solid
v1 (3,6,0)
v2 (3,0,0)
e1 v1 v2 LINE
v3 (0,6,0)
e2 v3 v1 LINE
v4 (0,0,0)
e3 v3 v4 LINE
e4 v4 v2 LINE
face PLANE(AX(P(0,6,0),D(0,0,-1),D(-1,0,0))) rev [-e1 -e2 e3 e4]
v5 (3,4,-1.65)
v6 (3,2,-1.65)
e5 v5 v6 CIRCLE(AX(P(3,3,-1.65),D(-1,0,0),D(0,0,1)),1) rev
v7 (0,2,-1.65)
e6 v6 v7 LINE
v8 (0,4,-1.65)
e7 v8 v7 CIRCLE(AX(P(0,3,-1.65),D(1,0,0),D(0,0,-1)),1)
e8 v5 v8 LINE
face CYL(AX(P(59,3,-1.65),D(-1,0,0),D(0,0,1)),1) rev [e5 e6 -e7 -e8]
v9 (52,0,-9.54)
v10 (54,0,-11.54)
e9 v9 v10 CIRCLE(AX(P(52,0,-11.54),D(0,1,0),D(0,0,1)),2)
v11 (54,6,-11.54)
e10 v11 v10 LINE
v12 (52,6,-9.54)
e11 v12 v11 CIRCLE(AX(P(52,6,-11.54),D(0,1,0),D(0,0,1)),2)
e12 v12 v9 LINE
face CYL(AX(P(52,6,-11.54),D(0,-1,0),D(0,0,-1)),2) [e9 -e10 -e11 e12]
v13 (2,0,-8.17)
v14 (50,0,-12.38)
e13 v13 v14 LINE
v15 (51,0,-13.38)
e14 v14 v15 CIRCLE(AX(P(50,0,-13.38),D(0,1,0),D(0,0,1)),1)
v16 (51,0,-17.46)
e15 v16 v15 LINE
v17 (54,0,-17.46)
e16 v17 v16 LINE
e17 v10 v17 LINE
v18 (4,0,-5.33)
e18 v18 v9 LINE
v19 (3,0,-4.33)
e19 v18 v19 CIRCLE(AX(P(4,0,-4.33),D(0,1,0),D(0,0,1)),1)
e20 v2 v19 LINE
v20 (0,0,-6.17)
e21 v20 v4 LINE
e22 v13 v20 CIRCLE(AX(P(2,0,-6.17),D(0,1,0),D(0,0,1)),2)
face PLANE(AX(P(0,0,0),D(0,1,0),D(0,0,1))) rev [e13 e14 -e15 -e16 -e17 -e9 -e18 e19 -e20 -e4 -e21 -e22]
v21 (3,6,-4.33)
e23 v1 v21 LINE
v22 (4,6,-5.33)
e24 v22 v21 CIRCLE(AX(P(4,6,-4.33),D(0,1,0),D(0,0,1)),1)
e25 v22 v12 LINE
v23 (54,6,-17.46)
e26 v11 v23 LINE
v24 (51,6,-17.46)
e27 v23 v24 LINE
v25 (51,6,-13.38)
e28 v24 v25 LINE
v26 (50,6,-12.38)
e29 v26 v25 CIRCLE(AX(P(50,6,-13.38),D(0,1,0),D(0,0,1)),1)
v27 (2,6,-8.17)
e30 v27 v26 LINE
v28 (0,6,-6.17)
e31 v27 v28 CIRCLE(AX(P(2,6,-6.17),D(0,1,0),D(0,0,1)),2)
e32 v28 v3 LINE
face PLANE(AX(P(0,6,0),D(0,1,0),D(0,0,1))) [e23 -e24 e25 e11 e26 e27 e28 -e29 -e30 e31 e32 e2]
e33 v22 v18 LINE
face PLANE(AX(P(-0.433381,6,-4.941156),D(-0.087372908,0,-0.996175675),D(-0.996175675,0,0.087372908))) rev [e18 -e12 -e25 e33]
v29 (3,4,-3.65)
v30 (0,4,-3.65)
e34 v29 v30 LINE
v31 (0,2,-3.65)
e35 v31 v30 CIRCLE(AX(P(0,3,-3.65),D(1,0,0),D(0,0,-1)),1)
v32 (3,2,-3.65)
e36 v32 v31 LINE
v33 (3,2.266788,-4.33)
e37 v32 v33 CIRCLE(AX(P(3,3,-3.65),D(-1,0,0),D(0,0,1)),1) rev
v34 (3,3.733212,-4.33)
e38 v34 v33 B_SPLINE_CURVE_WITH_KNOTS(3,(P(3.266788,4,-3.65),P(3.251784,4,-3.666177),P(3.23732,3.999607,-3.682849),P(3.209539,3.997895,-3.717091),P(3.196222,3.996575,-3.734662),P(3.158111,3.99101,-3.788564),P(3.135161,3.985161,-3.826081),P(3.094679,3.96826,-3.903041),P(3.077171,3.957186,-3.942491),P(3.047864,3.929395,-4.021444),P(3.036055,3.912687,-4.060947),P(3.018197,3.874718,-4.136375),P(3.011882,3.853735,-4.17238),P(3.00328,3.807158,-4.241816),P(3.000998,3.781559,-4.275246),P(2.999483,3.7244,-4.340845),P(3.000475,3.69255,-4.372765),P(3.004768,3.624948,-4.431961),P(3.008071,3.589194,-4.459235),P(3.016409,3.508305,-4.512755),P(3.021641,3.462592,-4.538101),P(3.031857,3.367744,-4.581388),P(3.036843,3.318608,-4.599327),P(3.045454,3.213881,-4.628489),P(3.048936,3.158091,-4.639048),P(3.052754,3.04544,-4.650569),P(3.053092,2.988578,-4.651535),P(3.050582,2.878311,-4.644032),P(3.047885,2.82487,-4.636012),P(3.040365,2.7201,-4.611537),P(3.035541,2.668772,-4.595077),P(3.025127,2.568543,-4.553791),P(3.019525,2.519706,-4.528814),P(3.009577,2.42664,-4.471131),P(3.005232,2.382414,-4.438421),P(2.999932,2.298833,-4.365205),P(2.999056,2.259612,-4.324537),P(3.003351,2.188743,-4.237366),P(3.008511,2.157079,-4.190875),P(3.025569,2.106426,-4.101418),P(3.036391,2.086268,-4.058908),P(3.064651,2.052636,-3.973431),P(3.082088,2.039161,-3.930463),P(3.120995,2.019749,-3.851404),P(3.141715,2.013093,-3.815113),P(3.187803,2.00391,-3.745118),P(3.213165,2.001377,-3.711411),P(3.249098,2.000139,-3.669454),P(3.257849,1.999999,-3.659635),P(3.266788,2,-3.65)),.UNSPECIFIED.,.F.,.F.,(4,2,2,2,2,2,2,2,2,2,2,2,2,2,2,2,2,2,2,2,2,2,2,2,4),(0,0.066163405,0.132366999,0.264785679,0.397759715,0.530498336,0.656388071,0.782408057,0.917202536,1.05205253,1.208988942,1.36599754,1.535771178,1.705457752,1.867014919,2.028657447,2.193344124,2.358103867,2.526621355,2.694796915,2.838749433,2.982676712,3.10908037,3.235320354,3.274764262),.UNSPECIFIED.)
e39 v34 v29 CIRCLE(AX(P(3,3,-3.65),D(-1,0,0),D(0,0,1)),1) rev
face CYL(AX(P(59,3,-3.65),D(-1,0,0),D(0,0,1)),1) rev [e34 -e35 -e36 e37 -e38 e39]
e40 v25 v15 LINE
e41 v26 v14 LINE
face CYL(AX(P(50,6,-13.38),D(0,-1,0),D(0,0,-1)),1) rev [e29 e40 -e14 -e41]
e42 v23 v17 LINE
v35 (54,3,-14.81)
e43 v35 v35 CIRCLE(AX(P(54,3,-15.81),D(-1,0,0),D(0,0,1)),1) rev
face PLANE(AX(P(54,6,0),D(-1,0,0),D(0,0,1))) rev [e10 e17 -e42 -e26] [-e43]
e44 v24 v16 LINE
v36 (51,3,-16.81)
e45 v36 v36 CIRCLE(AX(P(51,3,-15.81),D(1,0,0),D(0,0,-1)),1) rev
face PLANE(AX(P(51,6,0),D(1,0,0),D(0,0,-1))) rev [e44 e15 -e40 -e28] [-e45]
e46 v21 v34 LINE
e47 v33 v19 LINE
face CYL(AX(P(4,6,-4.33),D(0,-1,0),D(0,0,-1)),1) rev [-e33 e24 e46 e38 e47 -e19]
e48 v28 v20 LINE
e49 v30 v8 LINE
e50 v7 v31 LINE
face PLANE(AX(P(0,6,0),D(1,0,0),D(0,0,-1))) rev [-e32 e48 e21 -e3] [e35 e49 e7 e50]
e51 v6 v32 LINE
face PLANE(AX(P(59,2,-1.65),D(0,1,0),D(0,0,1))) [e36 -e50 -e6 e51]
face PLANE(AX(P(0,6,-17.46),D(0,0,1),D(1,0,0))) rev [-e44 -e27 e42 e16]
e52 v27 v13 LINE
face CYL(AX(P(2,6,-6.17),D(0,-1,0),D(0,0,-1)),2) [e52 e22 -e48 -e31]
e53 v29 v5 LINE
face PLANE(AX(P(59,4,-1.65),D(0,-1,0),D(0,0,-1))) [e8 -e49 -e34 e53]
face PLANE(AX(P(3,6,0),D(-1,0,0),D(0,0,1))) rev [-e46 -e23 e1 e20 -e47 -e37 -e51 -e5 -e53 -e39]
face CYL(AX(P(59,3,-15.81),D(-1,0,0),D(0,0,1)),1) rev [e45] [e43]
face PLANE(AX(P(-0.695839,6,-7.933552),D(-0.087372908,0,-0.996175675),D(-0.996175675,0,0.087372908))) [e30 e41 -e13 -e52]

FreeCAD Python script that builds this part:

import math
import FreeCAD as App
import Part
import Sketcher

doc = App.newDocument("Part")
body = doc.addObject("PartDesign::Body", "Body")

sketch1 = body.newObject("Sketcher::SketchObject", "Sketch")
sketch1.AttachmentSupport = (doc.getObject("XZ_Plane"), [""])
sketch1.MapMode = "FlatFace"
sketch1.addGeometry([
    Part.LineSegment(App.Vector(0, -6.2, 0), App.Vector(0, 0, 0)),
    Part.LineSegment(App.Vector(0, 0, 0), App.Vector(3, 0, 0)),
    Part.LineSegment(App.Vector(3, 0, 0), App.Vector(3, -4.3, 0)),
    Part.ArcOfCircle(Part.Circle(App.Vector(4, -4.3, 0), App.Vector(0, 0, 1), 1), math.radians(-180), math.radians(-90)),
    Part.LineSegment(App.Vector(4, -5.3, 0), App.Vector(52, -9.5, 0)),
    Part.ArcOfCircle(Part.Circle(App.Vector(52, -11.5, 0), App.Vector(0, 0, 1), 2), math.radians(0), math.radians(90)),
    Part.LineSegment(App.Vector(54, -11.5, 0), App.Vector(54, -17.5, 0)),
    Part.LineSegment(App.Vector(54, -17.5, 0), App.Vector(51, -17.5, 0)),
    Part.LineSegment(App.Vector(51, -17.5, 0), App.Vector(51, -13.4, 0)),
    Part.ArcOfCircle(Part.Circle(App.Vector(50, -13.4, 0), App.Vector(0, 0, 1), 1), math.radians(0), math.radians(90)),
    Part.LineSegment(App.Vector(50, -12.4, 0), App.Vector(2, -8.2, 0)),
    Part.ArcOfCircle(Part.Circle(App.Vector(2, -6.2, 0), App.Vector(0, 0, 1), 2), math.radians(-180), math.radians(-90)),
], False)
sketch1.addConstraint([
    Sketcher.Constraint("Coincident", 0, 2, 1, 1),
    Sketcher.Constraint("Coincident", 1, 2, 2, 1),
    Sketcher.Constraint("Tangent", 2, 2, 3, 1),
    Sketcher.Constraint("Coincident", 3, 2, 4, 1),
    Sketcher.Constraint("Coincident", 4, 2, 5, 2),
    Sketcher.Constraint("Tangent", 5, 1, 6, 1),
    Sketcher.Constraint("Coincident", 6, 2, 7, 1),
    Sketcher.Constraint("Coincident", 7, 2, 8, 1),
    Sketcher.Constraint("Tangent", 8, 2, 9, 1),
    Sketcher.Constraint("Coincident", 9, 2, 10, 1),
    Sketcher.Constraint("Coincident", 10, 2, 11, 2),
    Sketcher.Constraint("Tangent", 11, 1, 0, 1),
    Sketcher.Constraint("Vertical", 0),
    Sketcher.Constraint("Horizontal", 1),
    Sketcher.Constraint("Vertical", 2),
    Sketcher.Constraint("Vertical", 6),
    Sketcher.Constraint("Horizontal", 7),
    Sketcher.Constraint("Vertical", 8),
    Sketcher.Constraint("Coincident", 0, 2, -1, 1),
    Sketcher.Constraint("Equal", 3, 9),
    Sketcher.Constraint("Equal", 5, 11),
    Sketcher.Constraint("Parallel", 4, 10),
    Sketcher.Constraint("Vertical", 5, 3, 4, 2),
    Sketcher.Constraint("Vertical", 11, 3, 10, 2),
    Sketcher.Constraint("Equal", 1, 7),
    Sketcher.Constraint("Equal", 4, 10),
    Sketcher.Constraint("Radius", 3, 1.0),
    Sketcher.Constraint("Radius", 5, 2.0),
    Sketcher.Constraint("DistanceX", 1, 1, 1, 2, 3.0),
    Sketcher.Constraint("DistanceX", -1, 1, 5, 3, 52.0),
    Sketcher.Constraint("DistanceX", -1, 1, 3, 2, 4.0),
    Sketcher.Constraint("DistanceY", 0, 1, 0, 2, 6.17),
    Sketcher.Constraint("DistanceY", 2, 2, 2, 1, 4.33),
    Sketcher.Constraint("DistanceY", 6, 2, 6, 1, 5.92),
    Sketcher.Constraint("DistanceY", 5, 3, -1, 1, 11.54),
])
pad1 = body.newObject("PartDesign::Pad", "Pad")
pad1.Profile = sketch1
pad1.Length = 6
pad1.Reversed = True

sketch2 = body.newObject("Sketcher::SketchObject", "Sketch001")
sketch2.AttachmentSupport = (doc.getObject("YZ_Plane"), [""])
sketch2.MapMode = "FlatFace"
sketch2.addGeometry([
    Part.Circle(App.Vector(3, -15.8, 0), App.Vector(0, 0, 1), 1),
    Part.LineSegment(App.Vector(4, -3.6, 0), App.Vector(4, -1.6, 0)),
    Part.ArcOfCircle(Part.Circle(App.Vector(3, -1.6, 0), App.Vector(0, 0, 1), 1), math.radians(0), math.radians(180)),
    Part.LineSegment(App.Vector(2, -1.6, 0), App.Vector(2, -3.6, 0)),
    Part.ArcOfCircle(Part.Circle(App.Vector(3, -3.6, 0), App.Vector(0, 0, 1), 1), math.radians(180), math.radians(360)),
], False)
sketch2.addConstraint([
    Sketcher.Constraint("Tangent", 1, 2, 2, 1),
    Sketcher.Constraint("Tangent", 2, 2, 3, 1),
    Sketcher.Constraint("Tangent", 3, 2, 4, 1),
    Sketcher.Constraint("Tangent", 4, 2, 1, 1),
    Sketcher.Constraint("Vertical", 1),
    Sketcher.Constraint("Vertical", 3),
    Sketcher.Constraint("Equal", 0, 2),
    Sketcher.Constraint("Vertical", 0, 3, 2, 3),
    Sketcher.Constraint("Diameter", 0, 2.0),
    Sketcher.Constraint("DistanceY", 1, 1, 1, 2, 2.0),
    Sketcher.Constraint("DistanceX", -1, 1, 0, 3, 3.0),
    Sketcher.Constraint("DistanceY", 0, 3, -1, 1, 15.81),
    Sketcher.Constraint("DistanceY", 2, 3, -1, 1, 1.65),
])
pocket1 = body.newObject("PartDesign::Pocket", "Pocket")
pocket1.Profile = sketch2
pocket1.Length = 59
pocket1.Reversed = True

doc.recompute()
